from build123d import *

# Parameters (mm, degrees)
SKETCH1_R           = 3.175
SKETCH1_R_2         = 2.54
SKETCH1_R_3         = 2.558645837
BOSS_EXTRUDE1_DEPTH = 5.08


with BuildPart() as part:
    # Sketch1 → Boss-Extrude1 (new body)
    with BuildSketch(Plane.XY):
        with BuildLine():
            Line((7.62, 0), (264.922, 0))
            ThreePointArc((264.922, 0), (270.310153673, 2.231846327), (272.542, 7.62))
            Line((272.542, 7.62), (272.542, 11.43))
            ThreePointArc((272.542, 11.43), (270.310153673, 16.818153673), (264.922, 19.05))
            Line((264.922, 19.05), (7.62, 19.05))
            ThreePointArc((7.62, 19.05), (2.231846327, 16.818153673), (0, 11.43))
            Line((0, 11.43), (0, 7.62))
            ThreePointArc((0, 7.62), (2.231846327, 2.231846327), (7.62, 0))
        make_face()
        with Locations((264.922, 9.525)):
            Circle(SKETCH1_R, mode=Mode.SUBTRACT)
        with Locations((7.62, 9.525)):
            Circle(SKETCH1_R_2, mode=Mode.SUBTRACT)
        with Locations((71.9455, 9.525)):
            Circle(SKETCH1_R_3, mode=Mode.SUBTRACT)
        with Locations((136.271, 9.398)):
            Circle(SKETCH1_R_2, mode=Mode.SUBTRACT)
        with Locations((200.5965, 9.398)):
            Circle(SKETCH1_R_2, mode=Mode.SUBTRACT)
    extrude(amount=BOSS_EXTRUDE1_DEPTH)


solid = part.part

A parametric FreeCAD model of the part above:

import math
import FreeCAD as App
import Part
import Sketcher
from FreeCAD import Vector
Q = App.Units.Quantity

doc = App.newDocument("Part")
body = doc.addObject("PartDesign::Body", "Body")

sketch1 = body.newObject("Sketcher::SketchObject", "Sketch")
sketch1.AttachmentSupport = (doc.getObject("XY_Plane"), [""])
sketch1.MapMode = "FlatFace"
sketch1.addGeometry([
    Part.LineSegment(Vector(7.6, 0, 0), Vector(264.9, 0, 0)),
    Part.ArcOfCircle(Part.Circle(Vector(264.9, 7.6, 0), Vector(0, 0, 1), 7.6), math.radians(-90), math.radians(0)),
    Part.LineSegment(Vector(272.5, 7.6, 0), Vector(272.5, 11.4, 0)),
    Part.ArcOfCircle(Part.Circle(Vector(264.9, 11.4, 0), Vector(0, 0, 1), 7.6), math.radians(0), math.radians(90)),
    Part.LineSegment(Vector(264.9, 19.1, 0), Vector(7.6, 19.1, 0)),
    Part.ArcOfCircle(Part.Circle(Vector(7.6, 11.4, 0), Vector(0, 0, 1), 7.6), math.radians(90), math.radians(180)),
    Part.LineSegment(Vector(0, 11.4, 0), Vector(0, 7.6, 0)),
    Part.ArcOfCircle(Part.Circle(Vector(7.6, 7.6, 0), Vector(0, 0, 1), 7.6), math.radians(180), math.radians(270)),
    Part.Circle(Vector(136.3, 9.4, 0), Vector(0, 0, 1), 2.5),
    Part.Circle(Vector(200.6, 9.4, 0), Vector(0, 0, 1), 2.5),
    Part.Circle(Vector(7.6, 9.5, 0), Vector(0, 0, 1), 2.5),
    Part.Circle(Vector(71.9, 9.5, 0), Vector(0, 0, 1), 2.6),
    Part.Circle(Vector(264.9, 9.5, 0), Vector(0, 0, 1), 3.2),
], False)
sketch1.addConstraint([
    Sketcher.Constraint("Tangent", 0, 2, 1, 1),
    Sketcher.Constraint("Tangent", 1, 2, 2, 1),
    Sketcher.Constraint("Tangent", 2, 2, 3, 1),
    Sketcher.Constraint("Tangent", 3, 2, 4, 1),
    Sketcher.Constraint("Tangent", 4, 2, 5, 1),
    Sketcher.Constraint("Tangent", 5, 2, 6, 1),
    Sketcher.Constraint("Tangent", 6, 2, 7, 1),
    Sketcher.Constraint("Tangent", 7, 2, 0, 1),
    Sketcher.Constraint("Horizontal", 0),
    Sketcher.Constraint("Vertical", 2),
    Sketcher.Constraint("Horizontal", 4),
    Sketcher.Constraint("Vertical", 6),
    Sketcher.Constraint("Equal", 1, 3),
    Sketcher.Constraint("Equal", 3, 5),
    Sketcher.Constraint("Equal", 5, 7),
    Sketcher.Constraint("Equal", 8, 9),
    Sketcher.Constraint("Equal", 9, 10),
    Sketcher.Constraint("PointOnObject", 0, 2, -1),
    Sketcher.Constraint("PointOnObject", 5, 2, -2),
    Sketcher.Constraint("Horizontal", 8, 3, 9, 3),
    Sketcher.Constraint("Horizontal", 10, 3, 11, 3),
    Sketcher.Constraint("Horizontal", 11, 3, 12, 3),
    Sketcher.Constraint("Vertical", 7, 3, 10, 3),
    Sketcher.Constraint("Vertical", 3, 3, 12, 3),
    Sketcher.Constraint("Diameter", 8, Q("0.2 in")),
    Sketcher.Constraint("Radius", 1, Q("0.3 in")),
    Sketcher.Constraint("Diameter", 12, Q("0.25 in")),
    Sketcher.Constraint("DistanceX", 0, 1, 0, 2, Q("10.13 in")),
    Sketcher.Constraint("DistanceY", 2, 1, 2, 2, Q("0.15 in")),
    Sketcher.Constraint("DistanceY", -1, 1, 8, 3, Q("0.37 in")),
    Sketcher.Constraint("Diameter", 11, Q("5.117292 mm")),
    Sketcher.Constraint("DistanceX", -1, 1, 8, 3, Q("5.365 in")),
    Sketcher.Constraint("DistanceY", -1, 1, 10, 3, Q("0.375 in")),
    Sketcher.Constraint("DistanceX", 11, 3, 9, 3, Q("5.065 in")),
    Sketcher.Constraint("DistanceX", -1, 1, 9, 3, Q("7.8975 in")),
])
pad1 = body.newObject("PartDesign::Pad", "Pad")
pad1.Profile = sketch1
pad1.Length = Q("0.2 in")

doc.recompute()
